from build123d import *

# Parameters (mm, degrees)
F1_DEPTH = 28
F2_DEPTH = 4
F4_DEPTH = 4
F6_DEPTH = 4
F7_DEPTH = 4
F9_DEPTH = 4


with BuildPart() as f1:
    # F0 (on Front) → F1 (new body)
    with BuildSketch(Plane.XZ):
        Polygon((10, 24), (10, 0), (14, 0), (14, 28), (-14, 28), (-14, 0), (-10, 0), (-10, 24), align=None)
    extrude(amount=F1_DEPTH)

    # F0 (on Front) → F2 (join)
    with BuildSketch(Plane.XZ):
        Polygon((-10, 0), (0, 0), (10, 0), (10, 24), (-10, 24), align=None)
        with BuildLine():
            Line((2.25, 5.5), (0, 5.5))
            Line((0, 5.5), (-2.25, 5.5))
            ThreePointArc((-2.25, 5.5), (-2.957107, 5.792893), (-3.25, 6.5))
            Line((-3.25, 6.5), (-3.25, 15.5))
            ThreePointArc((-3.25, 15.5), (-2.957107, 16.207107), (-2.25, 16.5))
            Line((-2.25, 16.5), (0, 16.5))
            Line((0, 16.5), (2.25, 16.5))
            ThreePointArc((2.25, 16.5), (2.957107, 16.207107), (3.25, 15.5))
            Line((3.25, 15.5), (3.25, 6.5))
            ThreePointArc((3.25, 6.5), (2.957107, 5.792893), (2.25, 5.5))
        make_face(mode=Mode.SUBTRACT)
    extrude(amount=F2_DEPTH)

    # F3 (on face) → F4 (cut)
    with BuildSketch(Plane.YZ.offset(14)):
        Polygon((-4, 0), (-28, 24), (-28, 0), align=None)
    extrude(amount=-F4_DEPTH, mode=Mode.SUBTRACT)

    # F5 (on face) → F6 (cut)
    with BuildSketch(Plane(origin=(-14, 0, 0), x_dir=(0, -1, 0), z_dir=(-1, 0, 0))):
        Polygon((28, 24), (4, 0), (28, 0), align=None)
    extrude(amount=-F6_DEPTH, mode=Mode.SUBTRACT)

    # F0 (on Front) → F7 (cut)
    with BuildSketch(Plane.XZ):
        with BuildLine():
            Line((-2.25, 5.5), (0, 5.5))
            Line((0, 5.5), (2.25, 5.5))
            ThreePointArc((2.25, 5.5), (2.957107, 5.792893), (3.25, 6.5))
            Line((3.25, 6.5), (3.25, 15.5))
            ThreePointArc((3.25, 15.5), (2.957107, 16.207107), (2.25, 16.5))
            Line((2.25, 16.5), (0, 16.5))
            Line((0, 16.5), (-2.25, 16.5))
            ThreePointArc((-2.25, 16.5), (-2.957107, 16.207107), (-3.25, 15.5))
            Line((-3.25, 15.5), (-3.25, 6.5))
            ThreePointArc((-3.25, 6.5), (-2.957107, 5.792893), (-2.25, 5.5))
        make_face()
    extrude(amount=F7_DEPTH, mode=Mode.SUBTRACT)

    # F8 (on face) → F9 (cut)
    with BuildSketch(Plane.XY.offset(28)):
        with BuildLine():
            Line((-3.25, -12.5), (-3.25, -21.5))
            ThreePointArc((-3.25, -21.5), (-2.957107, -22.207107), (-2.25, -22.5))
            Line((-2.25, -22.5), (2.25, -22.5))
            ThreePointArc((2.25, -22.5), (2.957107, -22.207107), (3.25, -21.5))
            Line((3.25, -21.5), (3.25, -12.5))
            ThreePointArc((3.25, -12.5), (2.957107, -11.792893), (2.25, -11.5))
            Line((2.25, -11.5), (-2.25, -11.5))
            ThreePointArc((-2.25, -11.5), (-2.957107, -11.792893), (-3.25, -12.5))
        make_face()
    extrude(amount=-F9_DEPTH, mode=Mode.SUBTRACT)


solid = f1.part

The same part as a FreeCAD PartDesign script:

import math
import FreeCAD as App
import Part
import Sketcher

V = App.Vector
Q = App.Units.Quantity


def add_polygon(sketch, points):
    """Adds a closed chain of lines whose ends are joined by coincident constraints."""
    first, n = sketch.GeometryCount, len(points)
    for a, b in zip(points, points[1:] + points[:1]):
        sketch.addGeometry(Part.LineSegment(App.Vector(*a, 0), App.Vector(*b, 0)), False)
    for i in range(n):
        sketch.addConstraint(Sketcher.Constraint("Coincident", first + i, 2, first + (i + 1) % n, 1))

doc = App.newDocument("Part")
body = doc.addObject("PartDesign::Body", "Body")

sketch1 = body.newObject("Sketcher::SketchObject", "Sketch")
sketch1.AttachmentSupport = (doc.getObject("XZ_Plane"), [""])
sketch1.MapMode = "FlatFace"
add_polygon(sketch1, [(10, 24), (10, 0), (14, 0), (14, 28), (-14, 28), (-14, 0), (-10, 0), (-10, 24)])
sketch1.addConstraint([
    Sketcher.Constraint("Vertical", 0),
    Sketcher.Constraint("Horizontal", 1),
    Sketcher.Constraint("Vertical", 2),
    Sketcher.Constraint("Horizontal", 3),
    Sketcher.Constraint("Vertical", 4),
    Sketcher.Constraint("Horizontal", 5),
    Sketcher.Constraint("Vertical", 6),
    Sketcher.Constraint("Horizontal", 7),
    Sketcher.Constraint("Symmetric", 1, 2, 4, 2, -1, 1),
    Sketcher.Constraint("Symmetric", 0, 2, 5, 2, -2),
    Sketcher.Constraint("Equal", 3, 2),
    Sketcher.Constraint("DistanceX", 1, 1, 1, 2, Q("4 mm")),
    Sketcher.Constraint("DistanceX", 3, 2, 3, 1, Q("28 mm")),
    Sketcher.Constraint("DistanceY", 0, 2, 0, 1, Q("24 mm")),
])
pad1 = body.newObject("PartDesign::Pad", "Pad")
pad1.Profile = sketch1
pad1.Length = 28

sketch2 = body.newObject("Sketcher::SketchObject", "Sketch001")
sketch2.AttachmentSupport = (doc.getObject("XZ_Plane"), [""])
sketch2.MapMode = "FlatFace"
add_polygon(sketch2, [(-10, 0), (10, 0), (10, 24), (-10, 24)])
sketch2.addGeometry(Part.ArcOfCircle(Part.Circle(V(2.250001, 6.499999, 0), V(0, 0, 1), 0.999999), math.radians(-90.000043), math.radians(0.000043)), False)
sketch2.addGeometry(Part.LineSegment(V(2.25, 5.5, 0), V(-2.25, 5.5, 0)), False)
sketch2.addGeometry(Part.ArcOfCircle(Part.Circle(V(-2.250001, 6.499999, 0), V(0, 0, 1), 0.999999), math.radians(179.999957), math.radians(270.000043)), False)
sketch2.addGeometry(Part.LineSegment(V(-3.25, 6.5, 0), V(-3.25, 15.5, 0)), False)
sketch2.addGeometry(Part.ArcOfCircle(Part.Circle(V(-2.250001, 15.500001, 0), V(0, 0, 1), 0.999999), math.radians(89.999957), math.radians(180.000043)), False)
sketch2.addGeometry(Part.LineSegment(V(-2.25, 16.5, 0), V(2.25, 16.5, 0)), False)
sketch2.addGeometry(Part.ArcOfCircle(Part.Circle(V(2.250001, 15.500001, 0), V(0, 0, 1), 0.999999), math.radians(-0.000043), math.radians(90.000043)), False)
sketch2.addGeometry(Part.LineSegment(V(3.25, 15.5, 0), V(3.25, 6.5, 0)), False)
sketch2.addConstraint([
    Sketcher.Constraint("Tangent", 4, 1, 5, 1),
    Sketcher.Constraint("Tangent", 5, 2, 6, 2),
    Sketcher.Constraint("Tangent", 6, 1, 7, 1),
    Sketcher.Constraint("Tangent", 7, 2, 8, 2),
    Sketcher.Constraint("Tangent", 8, 1, 9, 1),
    Sketcher.Constraint("Tangent", 9, 2, 10, 2),
    Sketcher.Constraint("Tangent", 10, 1, 11, 1),
    Sketcher.Constraint("Tangent", 11, 2, 4, 2),
    Sketcher.Constraint("Horizontal", 0),
    Sketcher.Constraint("Vertical", 1),
    Sketcher.Constraint("Horizontal", 2),
    Sketcher.Constraint("Vertical", 3),
    Sketcher.Constraint("Horizontal", 5),
    Sketcher.Constraint("Vertical", 7),
    Sketcher.Constraint("Horizontal", 9),
    Sketcher.Constraint("Vertical", 11),
    Sketcher.Constraint("Equal", 4, 6),
    Sketcher.Constraint("Equal", 6, 8),
    Sketcher.Constraint("Equal", 8, 10),
    Sketcher.Constraint("Symmetric", 0, 2, 3, 2, -1, 1),
    Sketcher.Constraint("Radius", 4, Q("0.999999 mm")),
    Sketcher.Constraint("DistanceX", 0, 1, 0, 2, Q("20 mm")),
    Sketcher.Constraint("DistanceY", 1, 1, 1, 2, Q("24 mm")),
    Sketcher.Constraint("DistanceY", 7, 1, 7, 2, Q("9 mm")),
    Sketcher.Constraint("DistanceX", 5, 2, 5, 1, Q("4.5 mm")),
    Sketcher.Constraint("DistanceY", -1, 1, 4, 3, Q("6.499999 mm")),
    Sketcher.Constraint("DistanceX", -1, 1, 4, 3, Q("2.250001 mm")),
])
pad2 = body.newObject("PartDesign::Pad", "Pad001")
pad2.Profile = sketch2
pad2.Length = 4

sketch3 = body.newObject("Sketcher::SketchObject", "Sketch002")
sketch3.AttachmentSupport = (doc.getObject("YZ_Plane"), [""])
sketch3.MapMode = "FlatFace"
sketch3.AttachmentOffset = App.Placement(V(0, 0, 14), App.Rotation())
add_polygon(sketch3, [(-4, 0), (-28, 24), (-28, 0)])
sketch3.addConstraint([
    Sketcher.Constraint("Vertical", 1),
    Sketcher.Constraint("Horizontal", 2),
    Sketcher.Constraint("PointOnObject", 1, 2, -1),
    Sketcher.Constraint("Equal", 2, 1),
    Sketcher.Constraint("DistanceX", 2, 1, 2, 2, Q("24 mm")),
    Sketcher.Constraint("DistanceX", 0, 2, -1, 1, Q("28 mm")),
])
pocket1 = body.newObject("PartDesign::Pocket", "Pocket")
pocket1.Profile = sketch3
pocket1.Length = 4

sketch4 = body.newObject("Sketcher::SketchObject", "Sketch003")
sketch4.AttachmentSupport = (doc.getObject("YZ_Plane"), [""])
sketch4.MapMode = "FlatFace"
sketch4.AttachmentOffset = App.Placement(V(0, 0, -14), App.Rotation())
add_polygon(sketch4, [(-28, 24), (-4, 0), (-28, 0)])
sketch4.addConstraint([
    Sketcher.Constraint("Horizontal", 1),
    Sketcher.Constraint("Vertical", 2),
    Sketcher.Constraint("PointOnObject", 0, 2, -1),
    Sketcher.Constraint("Equal", 1, 2),
    Sketcher.Constraint("DistanceX", 1, 2, 1, 1, Q("24 mm")),
    Sketcher.Constraint("DistanceX", 0, 2, -1, 1, Q("4 mm")),
])
pocket2 = body.newObject("PartDesign::Pocket", "Pocket001")
pocket2.Profile = sketch4
pocket2.Length = 4
pocket2.Reversed = True

sketch5 = body.newObject("Sketcher::SketchObject", "Sketch004")
sketch5.AttachmentSupport = (doc.getObject("XZ_Plane"), [""])
sketch5.MapMode = "FlatFace"
sketch5.addGeometry([
    Part.LineSegment(V(-2.25, 5.5, 0), V(2.25, 5.5, 0)),
    Part.ArcOfCircle(Part.Circle(V(2.250001, 6.499999, 0), V(0, 0, 1), 0.999999), math.radians(-90.000043), math.radians(0.000043)),
    Part.LineSegment(V(3.25, 6.5, 0), V(3.25, 15.5, 0)),
    Part.ArcOfCircle(Part.Circle(V(2.250001, 15.500001, 0), V(0, 0, 1), 0.999999), math.radians(-0.000043), math.radians(90.000043)),
    Part.LineSegment(V(2.25, 16.5, 0), V(-2.25, 16.5, 0)),
    Part.ArcOfCircle(Part.Circle(V(-2.250001, 15.500001, 0), V(0, 0, 1), 0.999999), math.radians(89.999957), math.radians(180.000043)),
    Part.LineSegment(V(-3.25, 15.5, 0), V(-3.25, 6.5, 0)),
    Part.ArcOfCircle(Part.Circle(V(-2.250001, 6.499999, 0), V(0, 0, 1), 0.999999), math.radians(179.999957), math.radians(270.000043)),
], False)
sketch5.addConstraint([
    Sketcher.Constraint("Tangent", 0, 2, 1, 1),
    Sketcher.Constraint("Tangent", 1, 2, 2, 1),
    Sketcher.Constraint("Tangent", 2, 2, 3, 1),
    Sketcher.Constraint("Tangent", 3, 2, 4, 1),
    Sketcher.Constraint("Tangent", 4, 2, 5, 1),
    Sketcher.Constraint("Tangent", 5, 2, 6, 1),
    Sketcher.Constraint("Tangent", 6, 2, 7, 1),
    Sketcher.Constraint("Tangent", 7, 2, 0, 1),
    Sketcher.Constraint("Horizontal", 0),
    Sketcher.Constraint("Vertical", 2),
    Sketcher.Constraint("Horizontal", 4),
    Sketcher.Constraint("Vertical", 6),
    Sketcher.Constraint("Equal", 1, 3),
    Sketcher.Constraint("Equal", 3, 5),
    Sketcher.Constraint("Equal", 5, 7),
    Sketcher.Constraint("Radius", 1, Q("0.999999 mm")),
    Sketcher.Constraint("DistanceY", 2, 1, 2, 2, Q("9 mm")),
    Sketcher.Constraint("DistanceX", 0, 1, 0, 2, Q("4.5 mm")),
    Sketcher.Constraint("DistanceY", -1, 1, 1, 3, Q("6.499999 mm")),
    Sketcher.Constraint("DistanceX", -1, 1, 1, 3, Q("2.250001 mm")),
])
pocket3 = body.newObject("PartDesign::Pocket", "Pocket002")
pocket3.Profile = sketch5
pocket3.Length = 4
pocket3.Reversed = True

sketch6 = body.newObject("Sketcher::SketchObject", "Sketch005")
sketch6.AttachmentSupport = (doc.getObject("XY_Plane"), [""])
sketch6.MapMode = "FlatFace"
sketch6.AttachmentOffset = App.Placement(V(0, 0, 28), App.Rotation())
sketch6.addGeometry([
    Part.LineSegment(V(-3.25, -12.5, 0), V(-3.25, -21.5, 0)),
    Part.ArcOfCircle(Part.Circle(V(-2.250001, -21.500001, 0), V(0, 0, 1), 0.999999), math.radians(179.999957), math.radians(270.000043)),
    Part.LineSegment(V(-2.25, -22.5, 0), V(2.25, -22.5, 0)),
    Part.ArcOfCircle(Part.Circle(V(2.250001, -21.500001, 0), V(0, 0, 1), 0.999999), math.radians(-90.000043), math.radians(0.000043)),
    Part.LineSegment(V(3.25, -21.5, 0), V(3.25, -12.5, 0)),
    Part.ArcOfCircle(Part.Circle(V(2.250001, -12.499999, 0), V(0, 0, 1), 0.999999), math.radians(-0.000043), math.radians(90.000043)),
    Part.LineSegment(V(2.25, -11.5, 0), V(-2.25, -11.5, 0)),
    Part.ArcOfCircle(Part.Circle(V(-2.250001, -12.499999, 0), V(0, 0, 1), 0.999999), math.radians(89.999957), math.radians(180.000043)),
], False)
sketch6.addConstraint([
    Sketcher.Constraint("Tangent", 0, 2, 1, 1),
    Sketcher.Constraint("Tangent", 1, 2, 2, 1),
    Sketcher.Constraint("Tangent", 2, 2, 3, 1),
    Sketcher.Constraint("Tangent", 3, 2, 4, 1),
    Sketcher.Constraint("Tangent", 4, 2, 5, 1),
    Sketcher.Constraint("Tangent", 5, 2, 6, 1),
    Sketcher.Constraint("Tangent", 6, 2, 7, 1),
    Sketcher.Constraint("Tangent", 7, 2, 0, 1),
    Sketcher.Constraint("Vertical", 0),
    Sketcher.Constraint("Horizontal", 2),
    Sketcher.Constraint("Vertical", 4),
    Sketcher.Constraint("Horizontal", 6),
    Sketcher.Constraint("Equal", 1, 3),
    Sketcher.Constraint("Equal", 3, 5),
    Sketcher.Constraint("Equal", 5, 7),
    Sketcher.Constraint("Radius", 1, Q("0.999999 mm")),
    Sketcher.Constraint("DistanceY", 0, 2, 0, 1, Q("9 mm")),
    Sketcher.Constraint("DistanceX", 2, 1, 2, 2, Q("4.5 mm")),
    Sketcher.Constraint("DistanceY", 1, 3, -1, 1, Q("21.500001 mm")),
    Sketcher.Constraint("DistanceX", 1, 3, -1, 1, Q("2.250001 mm")),
])
pocket4 = body.newObject("PartDesign::Pocket", "Pocket003")
pocket4.Profile = sketch6
pocket4.Length = 4

doc.recompute()
